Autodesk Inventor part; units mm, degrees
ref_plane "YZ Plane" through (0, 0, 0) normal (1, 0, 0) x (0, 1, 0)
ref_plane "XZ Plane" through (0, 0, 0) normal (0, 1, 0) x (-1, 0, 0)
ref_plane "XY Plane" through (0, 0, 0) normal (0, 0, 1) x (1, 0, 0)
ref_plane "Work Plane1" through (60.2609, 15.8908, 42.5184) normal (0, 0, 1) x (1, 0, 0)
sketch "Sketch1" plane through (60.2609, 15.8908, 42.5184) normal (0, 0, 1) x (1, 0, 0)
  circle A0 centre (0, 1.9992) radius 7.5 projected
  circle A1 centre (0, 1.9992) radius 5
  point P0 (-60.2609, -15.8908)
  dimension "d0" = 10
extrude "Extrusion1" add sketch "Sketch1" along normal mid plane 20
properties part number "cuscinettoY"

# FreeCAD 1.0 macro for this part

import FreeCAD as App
import Part
import Sketcher

doc = App.newDocument("Part")
body = doc.addObject("PartDesign::Body", "Body")

sketch1 = body.newObject("Sketcher::SketchObject", "Sketch")
sketch1.AttachmentSupport = (doc.getObject("XY_Plane"), [""])
sketch1.MapMode = "FlatFace"
sketch1.AttachmentOffset = App.Placement(App.Vector(0, 0, 42.5184), App.Rotation())
sketch1.addGeometry([
    Part.Circle(App.Vector(60, 18, 0), App.Vector(0, 0, 1), 8),
    Part.Circle(App.Vector(60, 18, 0), App.Vector(0, 0, 1), 5),
], False)
sketch1.addConstraint([
    Sketcher.Constraint("Coincident", 1, 3, 0, 3),
    Sketcher.Constraint("Diameter", 1, 10.0),
    Sketcher.Constraint("Diameter", 0, 15.0),
    Sketcher.Constraint("DistanceY", -1, 1, 0, 3, 17.89),
    Sketcher.Constraint("DistanceX", -1, 1, 0, 3, 60.261),
])
pad1 = body.newObject("PartDesign::Pad", "Pad")
pad1.Profile = sketch1
pad1.Length = 20
pad1.Midplane = True

doc.recompute()
